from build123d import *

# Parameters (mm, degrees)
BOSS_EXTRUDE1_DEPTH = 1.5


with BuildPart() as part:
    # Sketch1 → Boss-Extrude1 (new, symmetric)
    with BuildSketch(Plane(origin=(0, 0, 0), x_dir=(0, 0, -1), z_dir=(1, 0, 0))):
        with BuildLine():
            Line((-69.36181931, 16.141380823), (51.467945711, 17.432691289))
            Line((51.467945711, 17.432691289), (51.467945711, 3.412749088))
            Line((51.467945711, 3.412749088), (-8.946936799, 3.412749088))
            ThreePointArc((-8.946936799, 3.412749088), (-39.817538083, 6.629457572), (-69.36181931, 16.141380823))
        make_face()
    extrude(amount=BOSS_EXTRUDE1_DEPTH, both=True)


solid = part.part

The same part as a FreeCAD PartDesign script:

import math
import FreeCAD as App
import Part
import Sketcher
Q = App.Units.Quantity

doc = App.newDocument("Part")
body = doc.addObject("PartDesign::Body", "Body")

sketch1 = body.newObject("Sketcher::SketchObject", "Sketch")
sketch1.AttachmentSupport = (doc.getObject("YZ_Plane"), [""])
sketch1.MapMode = "FlatFace"
sketch1.addGeometry(Part.LineSegment(App.Vector(17, -51, 0), App.Vector(16, 69, 0)), False)
sketch1.addGeometry(Part.ArcOfCircle(Part.Circle(App.Vector(153, 9, 0), App.Vector(0, 0, 1), 150), math.radians(156), math.radians(180)), False)
sketch1.addGeometry(Part.LineSegment(App.Vector(3, 9, 0), App.Vector(3, -51, 0)), False)
sketch1.addGeometry(Part.LineSegment(App.Vector(3, -51, 0), App.Vector(17, -51, 0)), False)
sketch1.addConstraint(Sketcher.Constraint("Coincident", 0, 2, 1, 1))
sketch1.addConstraint(Sketcher.Constraint("Tangent", 1, 2, 2, 1))
sketch1.addConstraint(Sketcher.Constraint("Coincident", 2, 2, 3, 1))
sketch1.addConstraint(Sketcher.Constraint("Coincident", 3, 2, 0, 1))
sketch1.addConstraint(Sketcher.Constraint("Vertical", 2))
sketch1.addConstraint(Sketcher.Constraint("Horizontal", 3))
sketch1.addConstraint(Sketcher.Constraint("Radius", 1, Q("149.740215 mm")))
sketch1.addConstraint(Sketcher.Constraint("DistanceX", 3, 1, 3, 2, Q("14.019942 mm")))
sketch1.addConstraint(Sketcher.Constraint("DistanceY", 2, 2, 2, 1, Q("60.414883 mm")))
sketch1.addConstraint(Sketcher.Constraint("DistanceX", -1, 1, 0, 2, Q("16.141381 mm")))
sketch1.addConstraint(Sketcher.Constraint("DistanceY", -1, 1, 0, 2, Q("69.361819 mm")))
sketch1.addConstraint(Sketcher.Constraint("DistanceX", -1, 1, 1, 2, Q("3.412749 mm")))
pad1 = body.newObject("PartDesign::Pad", "Pad")
pad1.Profile = sketch1
pad1.Length = 3
pad1.Midplane = True

doc.recompute()
